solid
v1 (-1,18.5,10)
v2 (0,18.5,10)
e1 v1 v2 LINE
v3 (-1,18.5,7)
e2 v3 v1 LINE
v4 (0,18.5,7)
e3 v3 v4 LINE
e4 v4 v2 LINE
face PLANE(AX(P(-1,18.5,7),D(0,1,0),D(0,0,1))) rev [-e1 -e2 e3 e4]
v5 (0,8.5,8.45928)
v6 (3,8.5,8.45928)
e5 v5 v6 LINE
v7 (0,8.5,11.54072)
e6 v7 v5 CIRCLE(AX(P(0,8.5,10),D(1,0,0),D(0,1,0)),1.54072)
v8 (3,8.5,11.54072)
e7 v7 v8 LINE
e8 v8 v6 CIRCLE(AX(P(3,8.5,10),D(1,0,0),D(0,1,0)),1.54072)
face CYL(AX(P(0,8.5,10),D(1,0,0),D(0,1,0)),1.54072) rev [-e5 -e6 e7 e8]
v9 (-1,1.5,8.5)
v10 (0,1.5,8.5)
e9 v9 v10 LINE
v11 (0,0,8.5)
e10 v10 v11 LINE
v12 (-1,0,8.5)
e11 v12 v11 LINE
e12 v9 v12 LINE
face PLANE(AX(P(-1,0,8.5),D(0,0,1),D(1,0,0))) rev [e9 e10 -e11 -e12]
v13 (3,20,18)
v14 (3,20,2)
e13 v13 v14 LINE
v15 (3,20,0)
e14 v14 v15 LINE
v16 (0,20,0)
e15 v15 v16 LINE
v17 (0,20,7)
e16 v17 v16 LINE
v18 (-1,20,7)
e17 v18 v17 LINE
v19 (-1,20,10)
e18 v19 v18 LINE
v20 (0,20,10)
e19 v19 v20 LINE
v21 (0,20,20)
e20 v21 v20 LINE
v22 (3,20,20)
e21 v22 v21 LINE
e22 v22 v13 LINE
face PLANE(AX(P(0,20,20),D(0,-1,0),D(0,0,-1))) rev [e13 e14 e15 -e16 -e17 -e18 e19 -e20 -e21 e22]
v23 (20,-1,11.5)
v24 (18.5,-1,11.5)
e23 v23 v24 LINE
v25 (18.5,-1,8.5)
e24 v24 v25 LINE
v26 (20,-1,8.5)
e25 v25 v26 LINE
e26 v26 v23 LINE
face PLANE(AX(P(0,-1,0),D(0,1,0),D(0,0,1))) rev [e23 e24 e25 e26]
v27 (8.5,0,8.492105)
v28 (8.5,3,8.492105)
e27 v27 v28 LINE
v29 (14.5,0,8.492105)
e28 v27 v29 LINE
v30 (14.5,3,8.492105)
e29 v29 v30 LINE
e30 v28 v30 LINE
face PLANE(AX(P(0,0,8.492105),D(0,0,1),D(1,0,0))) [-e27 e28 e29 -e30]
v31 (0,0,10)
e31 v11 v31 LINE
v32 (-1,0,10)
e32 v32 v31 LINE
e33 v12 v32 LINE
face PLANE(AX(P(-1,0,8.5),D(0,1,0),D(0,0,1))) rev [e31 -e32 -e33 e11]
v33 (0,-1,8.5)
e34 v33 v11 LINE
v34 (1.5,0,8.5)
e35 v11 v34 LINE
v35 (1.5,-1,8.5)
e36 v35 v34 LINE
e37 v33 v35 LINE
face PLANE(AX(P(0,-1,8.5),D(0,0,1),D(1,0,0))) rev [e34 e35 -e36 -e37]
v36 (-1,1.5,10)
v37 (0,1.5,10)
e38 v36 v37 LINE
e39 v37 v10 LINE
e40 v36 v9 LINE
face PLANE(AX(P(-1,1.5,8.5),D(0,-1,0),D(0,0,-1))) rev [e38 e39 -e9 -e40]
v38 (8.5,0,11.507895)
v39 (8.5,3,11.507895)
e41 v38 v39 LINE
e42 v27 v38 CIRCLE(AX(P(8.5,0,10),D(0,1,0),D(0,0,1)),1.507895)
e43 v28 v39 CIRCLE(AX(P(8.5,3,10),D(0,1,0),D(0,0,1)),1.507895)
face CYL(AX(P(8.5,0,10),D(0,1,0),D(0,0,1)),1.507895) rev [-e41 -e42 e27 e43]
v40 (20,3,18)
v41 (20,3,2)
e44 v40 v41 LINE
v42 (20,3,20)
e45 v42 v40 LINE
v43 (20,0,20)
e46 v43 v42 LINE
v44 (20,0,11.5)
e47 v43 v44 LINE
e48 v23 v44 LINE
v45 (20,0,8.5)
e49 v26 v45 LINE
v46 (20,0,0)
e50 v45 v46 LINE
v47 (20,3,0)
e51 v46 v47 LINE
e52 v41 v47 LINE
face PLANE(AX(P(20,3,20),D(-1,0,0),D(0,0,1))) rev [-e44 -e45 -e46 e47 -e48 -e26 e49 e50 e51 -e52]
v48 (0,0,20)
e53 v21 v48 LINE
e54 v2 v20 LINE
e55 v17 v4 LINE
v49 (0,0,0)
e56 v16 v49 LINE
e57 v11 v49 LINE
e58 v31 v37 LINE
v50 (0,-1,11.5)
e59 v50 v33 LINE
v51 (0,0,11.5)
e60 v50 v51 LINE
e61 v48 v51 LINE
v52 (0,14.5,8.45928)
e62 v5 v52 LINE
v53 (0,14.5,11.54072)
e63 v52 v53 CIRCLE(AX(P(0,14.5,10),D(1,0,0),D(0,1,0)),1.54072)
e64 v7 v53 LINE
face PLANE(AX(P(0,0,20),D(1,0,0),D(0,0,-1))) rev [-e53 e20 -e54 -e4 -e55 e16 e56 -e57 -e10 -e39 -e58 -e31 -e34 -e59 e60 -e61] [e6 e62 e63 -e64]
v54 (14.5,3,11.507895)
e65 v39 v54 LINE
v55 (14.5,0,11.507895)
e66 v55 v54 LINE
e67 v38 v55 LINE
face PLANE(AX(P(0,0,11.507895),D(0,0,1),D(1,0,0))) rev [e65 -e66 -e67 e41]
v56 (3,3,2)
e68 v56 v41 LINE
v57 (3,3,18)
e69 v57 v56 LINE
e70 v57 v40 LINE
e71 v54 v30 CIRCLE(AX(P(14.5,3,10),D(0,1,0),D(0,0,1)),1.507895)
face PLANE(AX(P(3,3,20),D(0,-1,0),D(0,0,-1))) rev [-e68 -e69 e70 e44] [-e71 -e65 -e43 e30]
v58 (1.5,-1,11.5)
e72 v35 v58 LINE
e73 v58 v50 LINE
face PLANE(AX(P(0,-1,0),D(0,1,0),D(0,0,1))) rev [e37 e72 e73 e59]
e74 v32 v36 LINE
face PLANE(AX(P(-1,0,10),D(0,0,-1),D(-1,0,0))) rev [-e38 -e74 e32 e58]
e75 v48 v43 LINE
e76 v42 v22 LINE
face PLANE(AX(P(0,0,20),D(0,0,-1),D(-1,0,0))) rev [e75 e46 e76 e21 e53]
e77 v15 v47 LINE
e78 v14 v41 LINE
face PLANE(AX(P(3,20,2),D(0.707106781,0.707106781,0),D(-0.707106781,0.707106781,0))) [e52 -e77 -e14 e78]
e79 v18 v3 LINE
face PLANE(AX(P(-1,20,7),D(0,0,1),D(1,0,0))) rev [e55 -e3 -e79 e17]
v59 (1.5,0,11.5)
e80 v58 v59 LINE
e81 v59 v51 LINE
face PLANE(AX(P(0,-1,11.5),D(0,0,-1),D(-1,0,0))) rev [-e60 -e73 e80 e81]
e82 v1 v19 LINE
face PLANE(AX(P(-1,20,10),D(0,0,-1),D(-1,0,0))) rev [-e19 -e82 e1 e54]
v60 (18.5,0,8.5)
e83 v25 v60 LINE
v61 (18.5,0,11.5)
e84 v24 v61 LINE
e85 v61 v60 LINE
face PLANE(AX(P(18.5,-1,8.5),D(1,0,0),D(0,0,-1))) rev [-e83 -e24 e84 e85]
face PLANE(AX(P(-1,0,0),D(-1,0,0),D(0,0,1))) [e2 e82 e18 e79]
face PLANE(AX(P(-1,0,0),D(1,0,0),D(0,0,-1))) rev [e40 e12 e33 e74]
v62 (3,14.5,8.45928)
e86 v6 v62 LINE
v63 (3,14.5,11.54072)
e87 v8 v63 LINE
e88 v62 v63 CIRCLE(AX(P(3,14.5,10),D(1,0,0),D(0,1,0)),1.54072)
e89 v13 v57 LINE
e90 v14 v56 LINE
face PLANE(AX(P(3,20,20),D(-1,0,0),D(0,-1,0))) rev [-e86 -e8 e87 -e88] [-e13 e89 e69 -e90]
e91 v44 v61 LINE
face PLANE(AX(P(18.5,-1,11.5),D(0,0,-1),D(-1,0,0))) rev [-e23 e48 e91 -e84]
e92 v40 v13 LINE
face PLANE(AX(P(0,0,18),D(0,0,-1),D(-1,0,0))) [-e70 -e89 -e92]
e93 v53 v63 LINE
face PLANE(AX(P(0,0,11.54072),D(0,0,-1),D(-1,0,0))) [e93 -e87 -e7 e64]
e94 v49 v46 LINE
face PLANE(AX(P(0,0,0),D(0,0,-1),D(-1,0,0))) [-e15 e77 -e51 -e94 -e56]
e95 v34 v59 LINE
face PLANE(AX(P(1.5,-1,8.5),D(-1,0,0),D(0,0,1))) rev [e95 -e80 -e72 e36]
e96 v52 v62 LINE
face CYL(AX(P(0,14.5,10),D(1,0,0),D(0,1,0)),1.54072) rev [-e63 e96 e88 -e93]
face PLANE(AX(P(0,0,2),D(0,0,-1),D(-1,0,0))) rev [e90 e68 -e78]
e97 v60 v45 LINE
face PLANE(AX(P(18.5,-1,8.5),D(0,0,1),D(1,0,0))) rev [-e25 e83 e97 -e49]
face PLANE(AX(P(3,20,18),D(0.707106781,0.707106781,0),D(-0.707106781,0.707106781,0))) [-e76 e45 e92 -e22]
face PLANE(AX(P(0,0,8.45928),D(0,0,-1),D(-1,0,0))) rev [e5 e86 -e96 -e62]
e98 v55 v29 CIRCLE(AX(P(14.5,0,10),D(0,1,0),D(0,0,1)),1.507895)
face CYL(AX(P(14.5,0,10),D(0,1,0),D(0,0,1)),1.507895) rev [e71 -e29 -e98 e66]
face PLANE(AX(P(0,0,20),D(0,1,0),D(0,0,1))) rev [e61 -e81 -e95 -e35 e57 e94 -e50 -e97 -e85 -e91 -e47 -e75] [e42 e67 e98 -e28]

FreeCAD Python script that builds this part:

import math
import FreeCAD as App
import Part
import Sketcher

V = App.Vector

doc = App.newDocument("Part")
body = doc.addObject("PartDesign::Body", "Body")

sketch1 = body.newObject("Sketcher::SketchObject", "Sketch")
sketch1.AttachmentSupport = (doc.getObject("XY_Plane"), [""])
sketch1.MapMode = "FlatFace"
sketch1.addGeometry([
    Part.LineSegment(V(3, 20, 0), V(0, 20, 0)),
    Part.LineSegment(V(0, 20, 0), V(0, 0, 0)),
    Part.LineSegment(V(0, 0, 0), V(20, 0, 0)),
    Part.LineSegment(V(20, 0, 0), V(20, 3, 0)),
    Part.LineSegment(V(20, 3, 0), V(3, 3, 0)),
    Part.LineSegment(V(3, 3, 0), V(3, 20, 0)),
], False)
sketch1.addConstraint([
    Sketcher.Constraint("Coincident", 0, 2, 1, 1),
    Sketcher.Constraint("Coincident", 1, 2, 2, 1),
    Sketcher.Constraint("Coincident", 2, 2, 3, 1),
    Sketcher.Constraint("Coincident", 3, 2, 4, 1),
    Sketcher.Constraint("Coincident", 4, 2, 5, 1),
    Sketcher.Constraint("Coincident", 5, 2, 0, 1),
    Sketcher.Constraint("Horizontal", 0),
    Sketcher.Constraint("Vertical", 1),
    Sketcher.Constraint("Horizontal", 2),
    Sketcher.Constraint("Vertical", 3),
    Sketcher.Constraint("Horizontal", 4),
    Sketcher.Constraint("Vertical", 5),
    Sketcher.Constraint("Coincident", 1, 2, -1, 1),
    Sketcher.Constraint("Equal", 2, 1),
    Sketcher.Constraint("Equal", 0, 3),
    Sketcher.Constraint("DistanceX", 0, 2, 0, 1, 3.0),
    Sketcher.Constraint("DistanceX", 2, 1, 2, 2, 20.0),
])
pad1 = body.newObject("PartDesign::Pad", "Pad")
pad1.Profile = sketch1
pad1.Length = 20

sketch2 = body.newObject("Sketcher::SketchObject", "Sketch001")
sketch2.AttachmentSupport = (doc.getObject("XY_Plane"), [""])
sketch2.MapMode = "FlatFace"
sketch2.AttachmentOffset = App.Placement(V(0, 0, 20), App.Rotation())
sketch2.addGeometry([
    Part.LineSegment(V(20, 3, 0), V(3, 20, 0)),
    Part.LineSegment(V(3, 20, 0), V(0, 20, 0)),
    Part.LineSegment(V(0, 20, 0), V(0, 0, 0)),
    Part.LineSegment(V(0, 0, 0), V(20, 0, 0)),
    Part.LineSegment(V(20, 0, 0), V(20, 3, 0)),
], False)
sketch2.addConstraint([
    Sketcher.Constraint("Coincident", 0, 2, 1, 1),
    Sketcher.Constraint("Coincident", 1, 2, 2, 1),
    Sketcher.Constraint("Coincident", 2, 2, 3, 1),
    Sketcher.Constraint("Coincident", 3, 2, 4, 1),
    Sketcher.Constraint("Coincident", 4, 2, 0, 1),
    Sketcher.Constraint("Horizontal", 1),
    Sketcher.Constraint("Vertical", 2),
    Sketcher.Constraint("Horizontal", 3),
    Sketcher.Constraint("Vertical", 4),
    Sketcher.Constraint("Coincident", 2, 2, -1, 1),
    Sketcher.Constraint("Equal", 3, 2),
    Sketcher.Constraint("Equal", 1, 4),
    Sketcher.Constraint("DistanceX", 1, 2, 1, 1, 3.0),
    Sketcher.Constraint("DistanceX", 3, 1, 3, 2, 20.0),
])
pad2 = body.newObject("PartDesign::Pad", "Pad001")
pad2.Profile = sketch2
pad2.Length = 2
pad2.Reversed = True

sketch3 = body.newObject("Sketcher::SketchObject", "Sketch002")
sketch3.AttachmentSupport = (doc.getObject("XY_Plane"), [""])
sketch3.MapMode = "FlatFace"
sketch3.addGeometry([
    Part.LineSegment(V(0, 20, 0), V(3, 20, 0)),
    Part.LineSegment(V(3, 20, 0), V(20, 3, 0)),
    Part.LineSegment(V(20, 3, 0), V(20, 0, 0)),
    Part.LineSegment(V(20, 0, 0), V(0, 0, 0)),
    Part.LineSegment(V(0, 0, 0), V(0, 20, 0)),
], False)
sketch3.addConstraint([
    Sketcher.Constraint("Coincident", 0, 2, 1, 1),
    Sketcher.Constraint("Coincident", 1, 2, 2, 1),
    Sketcher.Constraint("Coincident", 2, 2, 3, 1),
    Sketcher.Constraint("Coincident", 3, 2, 4, 1),
    Sketcher.Constraint("Coincident", 4, 2, 0, 1),
    Sketcher.Constraint("Horizontal", 0),
    Sketcher.Constraint("Vertical", 2),
    Sketcher.Constraint("Horizontal", 3),
    Sketcher.Constraint("Vertical", 4),
    Sketcher.Constraint("Coincident", 3, 2, -1, 1),
    Sketcher.Constraint("Equal", 0, 2),
    Sketcher.Constraint("Equal", 3, 4),
    Sketcher.Constraint("DistanceX", 0, 1, 0, 2, 3.0),
    Sketcher.Constraint("DistanceX", 3, 2, 3, 1, 20.0),
])
pad3 = body.newObject("PartDesign::Pad", "Pad002")
pad3.Profile = sketch3
pad3.Length = 2

sketch4 = body.newObject("Sketcher::SketchObject", "Sketch003")
sketch4.AttachmentSupport = (doc.getObject("YZ_Plane"), [""])
sketch4.MapMode = "FlatFace"
sketch4.AttachmentOffset = App.Placement(V(0, 0, 3), App.Rotation())
sketch4.addGeometry([
    Part.LineSegment(V(14.5, 11.5, 0), V(8.5, 11.5, 0)),
    Part.ArcOfCircle(Part.Circle(V(8.5, 10, 0), V(0, 0, 1), 1.5), math.radians(90), math.radians(270)),
    Part.LineSegment(V(8.5, 8.5, 0), V(14.5, 8.5, 0)),
    Part.ArcOfCircle(Part.Circle(V(14.5, 10, 0), V(0, 0, 1), 1.5), math.radians(-90), math.radians(90)),
], False)
sketch4.addConstraint([
    Sketcher.Constraint("Tangent", 0, 2, 1, 1),
    Sketcher.Constraint("Tangent", 1, 2, 2, 1),
    Sketcher.Constraint("Tangent", 2, 2, 3, 1),
    Sketcher.Constraint("Tangent", 3, 2, 0, 1),
    Sketcher.Constraint("Horizontal", 0),
    Sketcher.Constraint("Horizontal", 2),
    Sketcher.Constraint("DistanceX", 0, 2, 0, 1, 6.0),
    Sketcher.Constraint("DistanceY", -1, 1, 1, 3, 10.0),
    Sketcher.Constraint("DistanceX", -1, 1, 1, 3, 8.5),
    Sketcher.Constraint("Radius", 1, 1.54072),
])
pocket1 = body.newObject("PartDesign::Pocket", "Pocket")
pocket1.Profile = sketch4
pocket1.Type = "ThroughAll"

sketch5 = body.newObject("Sketcher::SketchObject", "Sketch004")
sketch5.AttachmentSupport = (doc.getObject("XZ_Plane"), [""])
sketch5.MapMode = "FlatFace"
sketch5.AttachmentOffset = App.Placement(V(0, 0, -3), App.Rotation())
sketch5.addGeometry([
    Part.LineSegment(V(14.5, 8.5, 0), V(8.5, 8.5, 0)),
    Part.ArcOfCircle(Part.Circle(V(8.5, 10, 0), V(0, 0, 1), 1.5), math.radians(90), math.radians(270)),
    Part.LineSegment(V(8.5, 11.5, 0), V(14.5, 11.5, 0)),
    Part.ArcOfCircle(Part.Circle(V(14.5, 10, 0), V(0, 0, 1), 1.5), math.radians(-90), math.radians(90)),
], False)
sketch5.addConstraint([
    Sketcher.Constraint("Tangent", 0, 2, 1, 2),
    Sketcher.Constraint("Tangent", 1, 1, 2, 1),
    Sketcher.Constraint("Tangent", 2, 2, 3, 2),
    Sketcher.Constraint("Tangent", 3, 1, 0, 1),
    Sketcher.Constraint("Horizontal", 0),
    Sketcher.Constraint("Horizontal", 2),
    Sketcher.Constraint("DistanceX", 0, 2, 0, 1, 6.0),
    Sketcher.Constraint("DistanceY", -1, 1, 1, 3, 10.0),
    Sketcher.Constraint("DistanceX", -1, 1, 1, 3, 8.5),
    Sketcher.Constraint("Radius", 1, 1.507895),
])
pocket2 = body.newObject("PartDesign::Pocket", "Pocket001")
pocket2.Profile = sketch5
pocket2.Type = "ThroughAll"
pocket2.Reversed = True

sketch6 = body.newObject("Sketcher::SketchObject", "Sketch005")
sketch6.AttachmentSupport = (doc.getObject("XZ_Plane"), [""])
sketch6.MapMode = "FlatFace"
sketch6.addGeometry([
    Part.LineSegment(V(0, 11.5, 0), V(0, 8.5, 0)),
    Part.LineSegment(V(0, 8.5, 0), V(1.5, 8.5, 0)),
    Part.LineSegment(V(1.5, 8.5, 0), V(1.5, 11.5, 0)),
    Part.LineSegment(V(1.5, 11.5, 0), V(0, 11.5, 0)),
    Part.LineSegment(V(18.5, 11.5, 0), V(18.5, 8.5, 0)),
    Part.LineSegment(V(18.5, 8.5, 0), V(20, 8.5, 0)),
    Part.LineSegment(V(20, 8.5, 0), V(20, 11.5, 0)),
    Part.LineSegment(V(20, 11.5, 0), V(18.5, 11.5, 0)),
], False)
sketch6.addConstraint([
    Sketcher.Constraint("Coincident", 0, 2, 1, 1),
    Sketcher.Constraint("Coincident", 1, 2, 2, 1),
    Sketcher.Constraint("Coincident", 2, 2, 3, 1),
    Sketcher.Constraint("Coincident", 3, 2, 0, 1),
    Sketcher.Constraint("Coincident", 4, 2, 5, 1),
    Sketcher.Constraint("Coincident", 5, 2, 6, 1),
    Sketcher.Constraint("Coincident", 6, 2, 7, 1),
    Sketcher.Constraint("Coincident", 7, 2, 4, 1),
    Sketcher.Constraint("Vertical", 0),
    Sketcher.Constraint("Horizontal", 1),
    Sketcher.Constraint("Vertical", 2),
    Sketcher.Constraint("Horizontal", 3),
    Sketcher.Constraint("Vertical", 4),
    Sketcher.Constraint("Horizontal", 5),
    Sketcher.Constraint("Vertical", 6),
    Sketcher.Constraint("Horizontal", 7),
    Sketcher.Constraint("PointOnObject", 0, 2, -2),
    Sketcher.Constraint("Horizontal", 1, 2, 4, 2),
    Sketcher.Constraint("Horizontal", 3, 2, 6, 2),
    Sketcher.Constraint("Equal", 3, 5),
    Sketcher.Constraint("DistanceY", 0, 2, 0, 1, 3.0),
    Sketcher.Constraint("DistanceX", 1, 1, 1, 2, 1.5),
    Sketcher.Constraint("DistanceX", -1, 1, 5, 2, 20.0),
    Sketcher.Constraint("DistanceY", -1, 1, 0, 2, 8.5),
])
pad4 = body.newObject("PartDesign::Pad", "Pad003")
pad4.Profile = sketch6
pad4.Length = 1

sketch7 = body.newObject("Sketcher::SketchObject", "Sketch006")
sketch7.AttachmentSupport = (doc.getObject("YZ_Plane"), [""])
sketch7.MapMode = "FlatFace"
sketch7.addGeometry([
    Part.LineSegment(V(20, 7, 0), V(18.5, 7, 0)),
    Part.LineSegment(V(18.5, 7, 0), V(18.5, 10, 0)),
    Part.LineSegment(V(18.5, 10, 0), V(20, 10, 0)),
    Part.LineSegment(V(20, 10, 0), V(20, 7, 0)),
    Part.LineSegment(V(1.5, 8.5, 0), V(0, 8.5, 0)),
    Part.LineSegment(V(0, 8.5, 0), V(0, 10, 0)),
    Part.LineSegment(V(0, 10, 0), V(1.5, 10, 0)),
    Part.LineSegment(V(1.5, 10, 0), V(1.5, 8.5, 0)),
], False)
sketch7.addConstraint([
    Sketcher.Constraint("Coincident", 0, 2, 1, 1),
    Sketcher.Constraint("Coincident", 1, 2, 2, 1),
    Sketcher.Constraint("Coincident", 2, 2, 3, 1),
    Sketcher.Constraint("Coincident", 3, 2, 0, 1),
    Sketcher.Constraint("Coincident", 4, 2, 5, 1),
    Sketcher.Constraint("Coincident", 5, 2, 6, 1),
    Sketcher.Constraint("Coincident", 6, 2, 7, 1),
    Sketcher.Constraint("Coincident", 7, 2, 4, 1),
    Sketcher.Constraint("Horizontal", 0),
    Sketcher.Constraint("Vertical", 1),
    Sketcher.Constraint("Horizontal", 2),
    Sketcher.Constraint("Vertical", 3),
    Sketcher.Constraint("Horizontal", 4),
    Sketcher.Constraint("Vertical", 5),
    Sketcher.Constraint("Horizontal", 6),
    Sketcher.Constraint("Vertical", 7),
    Sketcher.Constraint("PointOnObject", 4, 2, -2),
    Sketcher.Constraint("Horizontal", 2, 2, 5, 2),
    Sketcher.Constraint("Equal", 2, 4),
    Sketcher.Constraint("Equal", 6, 5),
    Sketcher.Constraint("DistanceY", 1, 1, 1, 2, 3.0),
    Sketcher.Constraint("DistanceX", 0, 2, 0, 1, 1.5),
    Sketcher.Constraint("DistanceY", -1, 1, 0, 2, 7.0),
    Sketcher.Constraint("DistanceX", -1, 1, 2, 2, 20.0),
])
pad5 = body.newObject("PartDesign::Pad", "Pad004")
pad5.Profile = sketch7
pad5.Length = 1
pad5.Reversed = True

doc.recompute()
